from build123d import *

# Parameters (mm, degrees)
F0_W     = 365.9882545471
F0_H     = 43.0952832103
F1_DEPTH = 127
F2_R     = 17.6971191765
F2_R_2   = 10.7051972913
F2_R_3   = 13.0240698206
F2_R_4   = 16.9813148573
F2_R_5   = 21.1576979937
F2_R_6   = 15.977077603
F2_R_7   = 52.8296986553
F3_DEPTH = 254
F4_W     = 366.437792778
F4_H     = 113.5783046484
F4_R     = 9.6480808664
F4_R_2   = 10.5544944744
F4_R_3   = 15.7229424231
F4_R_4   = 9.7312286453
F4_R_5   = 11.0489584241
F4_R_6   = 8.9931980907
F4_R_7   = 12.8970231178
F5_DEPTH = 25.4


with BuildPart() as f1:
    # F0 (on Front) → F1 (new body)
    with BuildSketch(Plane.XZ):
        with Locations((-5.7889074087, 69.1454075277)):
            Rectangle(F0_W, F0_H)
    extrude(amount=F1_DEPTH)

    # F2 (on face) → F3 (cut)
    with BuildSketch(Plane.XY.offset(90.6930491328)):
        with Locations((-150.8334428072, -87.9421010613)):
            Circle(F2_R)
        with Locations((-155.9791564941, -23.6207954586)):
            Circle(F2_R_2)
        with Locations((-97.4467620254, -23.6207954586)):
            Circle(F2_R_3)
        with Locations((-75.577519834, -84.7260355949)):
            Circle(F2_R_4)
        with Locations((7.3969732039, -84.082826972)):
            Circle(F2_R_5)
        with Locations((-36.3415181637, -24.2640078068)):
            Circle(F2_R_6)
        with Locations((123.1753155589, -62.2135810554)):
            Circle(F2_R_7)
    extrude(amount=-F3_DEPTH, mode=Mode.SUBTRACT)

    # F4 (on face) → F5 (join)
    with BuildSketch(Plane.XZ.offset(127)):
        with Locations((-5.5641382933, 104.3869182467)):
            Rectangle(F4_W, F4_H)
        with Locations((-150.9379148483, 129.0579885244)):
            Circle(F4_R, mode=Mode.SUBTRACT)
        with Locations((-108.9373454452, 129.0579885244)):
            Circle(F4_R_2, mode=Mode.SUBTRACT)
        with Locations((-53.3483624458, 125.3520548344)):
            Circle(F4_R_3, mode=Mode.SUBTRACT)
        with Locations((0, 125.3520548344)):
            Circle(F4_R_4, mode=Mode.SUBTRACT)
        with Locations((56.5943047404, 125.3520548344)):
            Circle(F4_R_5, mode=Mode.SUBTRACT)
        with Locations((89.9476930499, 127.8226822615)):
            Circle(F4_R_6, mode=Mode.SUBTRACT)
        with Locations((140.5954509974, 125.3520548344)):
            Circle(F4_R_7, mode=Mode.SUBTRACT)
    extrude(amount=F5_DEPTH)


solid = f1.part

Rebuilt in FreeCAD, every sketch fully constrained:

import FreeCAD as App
import Part
import Sketcher
from FreeCAD import Vector
Q = App.Units.Quantity


def add_polygon(sketch, points):
    """Adds a closed chain of lines whose ends are joined by coincident constraints."""
    first, n = sketch.GeometryCount, len(points)
    for a, b in zip(points, points[1:] + points[:1]):
        sketch.addGeometry(Part.LineSegment(App.Vector(*a, 0), App.Vector(*b, 0)), False)
    for i in range(n):
        sketch.addConstraint(Sketcher.Constraint("Coincident", first + i, 2, first + (i + 1) % n, 1))

doc = App.newDocument("Part")
params = doc.addObject("Spreadsheet::Sheet", "Params")
for row, (alias, value) in enumerate([
    ("pad1_length", "5 in"),
    ("pocket1_length", "10 in"),
    ("pad2_length", "1 in"),
], start=1):
    params.set(f"A{row}", alias)
    params.set(f"B{row}", "=" + value)
    params.setAlias(f"B{row}", alias)

body = doc.addObject("PartDesign::Body", "Body")

sketch1 = body.newObject("Sketcher::SketchObject", "Sketch")
sketch1.AttachmentSupport = (doc.getObject("XZ_Plane"), [""])
sketch1.MapMode = "FlatFace"
add_polygon(sketch1, [(-189, 91), (-189, 48), (177, 48), (177, 91)])
sketch1.addConstraint(Sketcher.Constraint("Vertical", 0))
sketch1.addConstraint(Sketcher.Constraint("Horizontal", 1))
sketch1.addConstraint(Sketcher.Constraint("Vertical", 2))
sketch1.addConstraint(Sketcher.Constraint("Horizontal", 3))
sketch1.addConstraint(Sketcher.Constraint("DistanceX", 1, 1, 1, 2, Q("365.988255 mm")))
sketch1.addConstraint(Sketcher.Constraint("DistanceY", 0, 2, 0, 1, Q("43.095283 mm")))
sketch1.addConstraint(Sketcher.Constraint("DistanceX", -1, 1, 1, 2, Q("177.20522 mm")))
sketch1.addConstraint(Sketcher.Constraint("DistanceY", -1, 1, 2, 2, Q("90.693049 mm")))
pad1 = body.newObject("PartDesign::Pad", "Pad")
pad1.Profile = sketch1
pad1.setExpression("Length", "Params.pad1_length")

sketch2 = body.newObject("Sketcher::SketchObject", "Sketch001")
sketch2.AttachmentSupport = (doc.getObject("XY_Plane"), [""])
sketch2.MapMode = "FlatFace"
sketch2.AttachmentOffset = App.Placement(Vector(0, 0, 90.693049), App.Rotation())
sketch2.addGeometry(Part.Circle(Vector(-151, -88, 0), Vector(0, 0, 1), 18), False)
sketch2.addGeometry(Part.Circle(Vector(-156, -24, 0), Vector(0, 0, 1), 11), False)
sketch2.addGeometry(Part.Circle(Vector(-97, -24, 0), Vector(0, 0, 1), 13), False)
sketch2.addGeometry(Part.Circle(Vector(-76, -85, 0), Vector(0, 0, 1), 17), False)
sketch2.addGeometry(Part.Circle(Vector(7, -84, 0), Vector(0, 0, 1), 21), False)
sketch2.addGeometry(Part.Circle(Vector(-36, -24, 0), Vector(0, 0, 1), 16), False)
sketch2.addGeometry(Part.Circle(Vector(123, -62, 0), Vector(0, 0, 1), 53), False)
sketch2.addConstraint(Sketcher.Constraint("Horizontal", 1, 3, 2, 3))
sketch2.addConstraint(Sketcher.Constraint("Diameter", 0, Q("35.394238 mm")))
sketch2.addConstraint(Sketcher.Constraint("Diameter", 2, Q("26.04814 mm")))
sketch2.addConstraint(Sketcher.Constraint("Diameter", 3, Q("33.96263 mm")))
sketch2.addConstraint(Sketcher.Constraint("Diameter", 1, Q("21.410395 mm")))
sketch2.addConstraint(Sketcher.Constraint("Diameter", 4, Q("42.315396 mm")))
sketch2.addConstraint(Sketcher.Constraint("Diameter", 5, Q("31.954155 mm")))
sketch2.addConstraint(Sketcher.Constraint("Diameter", 6, Q("105.659397 mm")))
sketch2.addConstraint(Sketcher.Constraint("DistanceY", 0, 3, -1, 1, Q("87.942101 mm")))
sketch2.addConstraint(Sketcher.Constraint("DistanceX", 3, 3, 5, 3, Q("39.236002 mm")))
sketch2.addConstraint(Sketcher.Constraint("DistanceX", 3, 3, -1, 1, Q("75.57752 mm")))
sketch2.addConstraint(Sketcher.Constraint("DistanceY", 6, 3, -1, 1, Q("62.213581 mm")))
sketch2.addConstraint(Sketcher.Constraint("DistanceX", 0, 3, 2, 3, Q("53.386681 mm")))
sketch2.addConstraint(Sketcher.Constraint("DistanceY", 3, 3, 2, 3, Q("61.10524 mm")))
sketch2.addConstraint(Sketcher.Constraint("DistanceY", 3, 3, 4, 3, Q("0.643209 mm")))
sketch2.addConstraint(Sketcher.Constraint("DistanceX", 1, 3, 4, 3, Q("163.37613 mm")))
sketch2.addConstraint(Sketcher.Constraint("DistanceX", 5, 3, 4, 3, Q("43.738491 mm")))
sketch2.addConstraint(Sketcher.Constraint("DistanceY", 4, 3, 5, 3, Q("59.818819 mm")))
sketch2.addConstraint(Sketcher.Constraint("DistanceX", 0, 3, 6, 3, Q("274.008758 mm")))
sketch2.addConstraint(Sketcher.Constraint("DistanceX", 0, 3, -1, 1, Q("150.833443 mm")))
sketch2.addConstraint(Sketcher.Constraint("DistanceY", 1, 3, -1, 1, Q("23.620795 mm")))
pocket1 = body.newObject("PartDesign::Pocket", "Pocket")
pocket1.Profile = sketch2
pocket1.setExpression("Length", "Params.pocket1_length")

sketch3 = body.newObject("Sketcher::SketchObject", "Sketch002")
sketch3.AttachmentSupport = (doc.getObject("XZ_Plane"), [""])
sketch3.MapMode = "FlatFace"
sketch3.AttachmentOffset = App.Placement(Vector(0, 0, 5 * 25.4), App.Rotation())
add_polygon(sketch3, [(-189, 161), (-189, 48), (178, 48), (178, 161)])
sketch3.addGeometry(Part.Circle(Vector(-151, 129, 0), Vector(0, 0, 1), 10), False)
sketch3.addGeometry(Part.Circle(Vector(-109, 129, 0), Vector(0, 0, 1), 11), False)
sketch3.addGeometry(Part.Circle(Vector(-53, 125, 0), Vector(0, 0, 1), 16), False)
sketch3.addGeometry(Part.Circle(Vector(0, 125, 0), Vector(0, 0, 1), 10), False)
sketch3.addGeometry(Part.Circle(Vector(57, 125, 0), Vector(0, 0, 1), 11), False)
sketch3.addGeometry(Part.Circle(Vector(90, 128, 0), Vector(0, 0, 1), 9), False)
sketch3.addGeometry(Part.Circle(Vector(141, 125, 0), Vector(0, 0, 1), 13), False)
sketch3.addConstraint(Sketcher.Constraint("Vertical", 0))
sketch3.addConstraint(Sketcher.Constraint("Horizontal", 1))
sketch3.addConstraint(Sketcher.Constraint("Vertical", 2))
sketch3.addConstraint(Sketcher.Constraint("Horizontal", 3))
sketch3.addConstraint(Sketcher.Constraint("PointOnObject", 7, 3, -2))
sketch3.addConstraint(Sketcher.Constraint("Horizontal", 4, 3, 5, 3))
sketch3.addConstraint(Sketcher.Constraint("Horizontal", 6, 3, 7, 3))
sketch3.addConstraint(Sketcher.Constraint("Horizontal", 7, 3, 8, 3))
sketch3.addConstraint(Sketcher.Constraint("Horizontal", 8, 3, 10, 3))
sketch3.addConstraint(Sketcher.Constraint("Diameter", 4, Q("19.296162 mm")))
sketch3.addConstraint(Sketcher.Constraint("Diameter", 5, Q("21.108989 mm")))
sketch3.addConstraint(Sketcher.Constraint("Diameter", 6, Q("31.445885 mm")))
sketch3.addConstraint(Sketcher.Constraint("Diameter", 7, Q("19.462457 mm")))
sketch3.addConstraint(Sketcher.Constraint("Diameter", 8, Q("22.097917 mm")))
sketch3.addConstraint(Sketcher.Constraint("Diameter", 9, Q("17.986396 mm")))
sketch3.addConstraint(Sketcher.Constraint("Diameter", 10, Q("25.794046 mm")))
sketch3.addConstraint(Sketcher.Constraint("DistanceX", 1, 1, 1, 2, Q("366.437793 mm")))
sketch3.addConstraint(Sketcher.Constraint("DistanceY", 0, 2, 0, 1, Q("113.578305 mm")))
sketch3.addConstraint(Sketcher.Constraint("DistanceY", -1, 1, 4, 3, Q("129.057989 mm")))
sketch3.addConstraint(Sketcher.Constraint("DistanceX", -1, 1, 10, 3, Q("140.595451 mm")))
sketch3.addConstraint(Sketcher.Constraint("DistanceX", -1, 1, 1, 2, Q("177.654758 mm")))
sketch3.addConstraint(Sketcher.Constraint("DistanceY", -1, 1, 2, 2, Q("161.176071 mm")))
sketch3.addConstraint(Sketcher.Constraint("DistanceX", 4, 3, 5, 3, Q("42.000569 mm")))
sketch3.addConstraint(Sketcher.Constraint("DistanceX", 5, 3, 8, 3, Q("165.53165 mm")))
sketch3.addConstraint(Sketcher.Constraint("DistanceX", 8, 3, 9, 3, Q("33.353388 mm")))
sketch3.addConstraint(Sketcher.Constraint("DistanceX", 0, 2, 4, 3, Q("37.84512 mm")))
sketch3.addConstraint(Sketcher.Constraint("DistanceY", 0, 2, 6, 3, Q("77.754289 mm")))
sketch3.addConstraint(Sketcher.Constraint("DistanceX", 6, 3, 1, 2, Q("231.003121 mm")))
sketch3.addConstraint(Sketcher.Constraint("DistanceY", 9, 3, 2, 2, Q("33.353388 mm")))
pad2 = body.newObject("PartDesign::Pad", "Pad001")
pad2.Profile = sketch3
pad2.setExpression("Length", "Params.pad2_length")

doc.recompute()
